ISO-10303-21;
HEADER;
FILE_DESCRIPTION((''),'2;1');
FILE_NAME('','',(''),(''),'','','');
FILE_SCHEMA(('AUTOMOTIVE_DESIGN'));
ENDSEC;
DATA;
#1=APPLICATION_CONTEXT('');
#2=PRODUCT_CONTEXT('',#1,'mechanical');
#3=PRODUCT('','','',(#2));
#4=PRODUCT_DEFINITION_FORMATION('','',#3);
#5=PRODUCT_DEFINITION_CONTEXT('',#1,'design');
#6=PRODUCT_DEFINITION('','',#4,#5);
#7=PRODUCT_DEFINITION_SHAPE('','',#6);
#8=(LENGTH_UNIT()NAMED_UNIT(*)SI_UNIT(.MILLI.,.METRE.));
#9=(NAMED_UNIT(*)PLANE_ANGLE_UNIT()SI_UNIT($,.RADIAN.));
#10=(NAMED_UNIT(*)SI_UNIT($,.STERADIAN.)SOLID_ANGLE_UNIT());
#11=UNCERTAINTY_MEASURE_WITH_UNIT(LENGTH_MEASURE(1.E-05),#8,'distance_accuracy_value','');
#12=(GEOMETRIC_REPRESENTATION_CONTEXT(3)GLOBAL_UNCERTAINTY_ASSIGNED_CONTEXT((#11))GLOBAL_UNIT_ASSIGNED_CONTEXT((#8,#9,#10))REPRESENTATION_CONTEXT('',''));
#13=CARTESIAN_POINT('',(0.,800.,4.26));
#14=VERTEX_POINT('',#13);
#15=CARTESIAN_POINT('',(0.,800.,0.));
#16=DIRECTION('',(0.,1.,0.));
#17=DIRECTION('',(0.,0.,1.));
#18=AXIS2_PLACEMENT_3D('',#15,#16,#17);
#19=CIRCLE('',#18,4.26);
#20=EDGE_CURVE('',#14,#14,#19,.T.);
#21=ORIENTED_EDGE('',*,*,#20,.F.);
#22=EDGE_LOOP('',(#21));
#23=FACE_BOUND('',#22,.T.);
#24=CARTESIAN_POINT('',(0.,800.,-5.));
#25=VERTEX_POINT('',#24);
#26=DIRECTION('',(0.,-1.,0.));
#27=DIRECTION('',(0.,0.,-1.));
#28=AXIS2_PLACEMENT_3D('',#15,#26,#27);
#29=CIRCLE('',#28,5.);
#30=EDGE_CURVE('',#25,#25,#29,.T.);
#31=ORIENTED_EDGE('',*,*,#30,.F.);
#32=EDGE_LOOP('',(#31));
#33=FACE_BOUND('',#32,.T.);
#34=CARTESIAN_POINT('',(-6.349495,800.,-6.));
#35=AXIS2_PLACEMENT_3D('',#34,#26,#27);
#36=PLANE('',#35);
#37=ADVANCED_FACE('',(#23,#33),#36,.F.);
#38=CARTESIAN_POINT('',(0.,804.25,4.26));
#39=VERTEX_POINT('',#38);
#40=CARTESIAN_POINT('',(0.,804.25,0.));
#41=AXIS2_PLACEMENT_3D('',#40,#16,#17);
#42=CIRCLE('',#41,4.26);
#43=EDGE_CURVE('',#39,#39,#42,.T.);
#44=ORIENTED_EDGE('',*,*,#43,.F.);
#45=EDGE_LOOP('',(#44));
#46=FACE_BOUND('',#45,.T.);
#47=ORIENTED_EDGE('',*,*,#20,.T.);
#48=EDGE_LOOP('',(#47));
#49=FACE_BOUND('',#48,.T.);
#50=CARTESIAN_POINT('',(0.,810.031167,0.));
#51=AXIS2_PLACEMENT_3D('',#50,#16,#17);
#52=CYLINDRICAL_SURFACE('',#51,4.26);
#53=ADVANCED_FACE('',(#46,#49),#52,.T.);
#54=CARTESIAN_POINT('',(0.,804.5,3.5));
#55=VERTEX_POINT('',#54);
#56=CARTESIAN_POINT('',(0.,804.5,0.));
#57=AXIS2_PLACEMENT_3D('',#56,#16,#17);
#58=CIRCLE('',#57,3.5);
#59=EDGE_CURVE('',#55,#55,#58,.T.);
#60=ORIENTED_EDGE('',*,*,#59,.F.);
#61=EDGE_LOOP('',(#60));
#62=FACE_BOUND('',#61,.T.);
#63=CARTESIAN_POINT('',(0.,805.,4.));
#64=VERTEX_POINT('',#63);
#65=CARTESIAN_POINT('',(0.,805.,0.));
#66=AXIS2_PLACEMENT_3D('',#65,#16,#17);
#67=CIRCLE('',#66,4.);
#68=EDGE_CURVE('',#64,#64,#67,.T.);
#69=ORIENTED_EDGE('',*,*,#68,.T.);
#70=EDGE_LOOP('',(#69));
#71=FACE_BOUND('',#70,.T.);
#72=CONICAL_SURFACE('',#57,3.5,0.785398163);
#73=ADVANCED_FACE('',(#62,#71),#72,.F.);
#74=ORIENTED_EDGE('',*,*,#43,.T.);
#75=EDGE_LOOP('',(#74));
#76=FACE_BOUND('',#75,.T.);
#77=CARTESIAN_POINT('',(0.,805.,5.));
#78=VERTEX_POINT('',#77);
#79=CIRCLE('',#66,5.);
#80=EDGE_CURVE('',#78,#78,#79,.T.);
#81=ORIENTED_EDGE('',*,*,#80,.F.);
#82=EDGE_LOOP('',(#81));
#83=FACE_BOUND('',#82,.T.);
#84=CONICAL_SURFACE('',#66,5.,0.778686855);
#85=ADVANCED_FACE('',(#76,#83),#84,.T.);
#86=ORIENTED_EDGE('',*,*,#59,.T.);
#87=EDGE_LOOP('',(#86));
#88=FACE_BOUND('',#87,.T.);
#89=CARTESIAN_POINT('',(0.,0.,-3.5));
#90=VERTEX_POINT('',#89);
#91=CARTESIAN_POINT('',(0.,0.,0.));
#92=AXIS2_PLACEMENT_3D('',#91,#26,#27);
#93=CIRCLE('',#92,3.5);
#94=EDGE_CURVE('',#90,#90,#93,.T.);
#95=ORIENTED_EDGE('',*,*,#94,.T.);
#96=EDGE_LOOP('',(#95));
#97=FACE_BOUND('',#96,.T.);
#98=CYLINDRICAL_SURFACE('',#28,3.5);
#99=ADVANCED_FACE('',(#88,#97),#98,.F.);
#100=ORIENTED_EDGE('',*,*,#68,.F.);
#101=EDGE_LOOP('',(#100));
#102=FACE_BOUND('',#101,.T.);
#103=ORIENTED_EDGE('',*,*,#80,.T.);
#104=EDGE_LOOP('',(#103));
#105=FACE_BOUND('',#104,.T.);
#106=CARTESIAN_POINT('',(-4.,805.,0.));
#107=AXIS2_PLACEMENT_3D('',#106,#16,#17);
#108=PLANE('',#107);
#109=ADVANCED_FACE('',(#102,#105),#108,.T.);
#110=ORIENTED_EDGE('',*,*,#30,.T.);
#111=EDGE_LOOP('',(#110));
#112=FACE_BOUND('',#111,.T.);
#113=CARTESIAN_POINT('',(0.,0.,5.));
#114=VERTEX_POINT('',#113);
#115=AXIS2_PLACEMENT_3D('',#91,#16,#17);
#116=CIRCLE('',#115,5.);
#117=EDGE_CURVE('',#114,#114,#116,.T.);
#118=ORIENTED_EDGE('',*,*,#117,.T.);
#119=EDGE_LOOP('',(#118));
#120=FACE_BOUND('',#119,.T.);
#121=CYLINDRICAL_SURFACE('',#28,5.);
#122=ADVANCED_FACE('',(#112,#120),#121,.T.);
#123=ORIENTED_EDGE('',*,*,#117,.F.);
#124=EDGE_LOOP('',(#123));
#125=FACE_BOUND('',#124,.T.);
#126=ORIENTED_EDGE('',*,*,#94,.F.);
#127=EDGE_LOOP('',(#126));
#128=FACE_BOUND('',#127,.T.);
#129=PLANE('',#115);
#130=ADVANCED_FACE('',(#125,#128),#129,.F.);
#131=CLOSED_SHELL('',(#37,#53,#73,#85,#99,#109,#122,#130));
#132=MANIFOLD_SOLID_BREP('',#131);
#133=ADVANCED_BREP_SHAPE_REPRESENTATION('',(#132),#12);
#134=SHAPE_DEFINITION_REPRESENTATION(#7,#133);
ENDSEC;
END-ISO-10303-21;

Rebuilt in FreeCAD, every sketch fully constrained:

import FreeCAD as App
import Part
import Sketcher
from FreeCAD import Vector
Q = App.Units.Quantity


def edges_at(feature, points):
    """Names of the edges that pass closest to the given points."""
    edges = feature.Shape.Edges
    near = lambda p: min(range(len(edges)), key=lambda i: edges[i].distToShape(Part.Vertex(*p))[0])
    return sorted({f"Edge{near(p) + 1}" for p in points})

doc = App.newDocument("Part")
body = doc.addObject("PartDesign::Body", "Body")

# Sketch on XZ plane
sketch1 = body.newObject("Sketcher::SketchObject", "Sketch")
sketch1.AttachmentSupport = (doc.getObject("XZ_Plane"), [""])
sketch1.MapMode = "FlatFace"
sketch1.addGeometry(Part.Circle(Vector(0, 0, 0), Vector(0, 0, 1), 5), False)
sketch1.addConstraint(Sketcher.Constraint("Coincident", 0, 3, -1, 1))
sketch1.addConstraint(Sketcher.Constraint("Diameter", 0, Q("10 mm")))
pad1 = body.newObject("PartDesign::Pad", "Pad")
pad1.Profile = sketch1
pad1.Length = 800
pad1.Reversed = True

# Sketch on XZ plane
sketch2 = body.newObject("Sketcher::SketchObject", "Sketch001")
sketch2.AttachmentSupport = (doc.getObject("XZ_Plane"), [""])
sketch2.MapMode = "FlatFace"
sketch2.addGeometry(Part.Circle(Vector(0, 0, 0), Vector(0, 0, 1), 3.5), False)
sketch2.addConstraint(Sketcher.Constraint("Coincident", 0, 3, -1, 1))
sketch2.addConstraint(Sketcher.Constraint("Diameter", 0, Q("7 mm")))
pocket1 = body.newObject("PartDesign::Pocket", "Pocket")
pocket1.Profile = sketch2
pocket1.Type = "ThroughAll"

# Sketch on XZ plane
sketch3 = body.newObject("Sketcher::SketchObject", "Sketch002")
sketch3.AttachmentSupport = (doc.getObject("XZ_Plane"), [""])
sketch3.MapMode = "FlatFace"
sketch3.AttachmentOffset = App.Placement(Vector(0, 0, -800), App.Rotation())
sketch3.addGeometry(Part.Circle(Vector(0, 0, 0), Vector(0, 0, 1), 6), False)
sketch3.addConstraint(Sketcher.Constraint("Coincident", 0, 3, -1, 1))
sketch3.addConstraint(Sketcher.Constraint("Diameter", 0, Q("12 mm")))
pad2 = body.newObject("PartDesign::Pad", "Pad001")
pad2.Profile = sketch3
pad2.Length = 1
pad2.Reversed = True

# Sketch on XZ plane
sketch4 = body.newObject("Sketcher::SketchObject", "Sketch003")
sketch4.AttachmentSupport = (doc.getObject("XZ_Plane"), [""])
sketch4.MapMode = "FlatFace"
sketch4.AttachmentOffset = App.Placement(Vector(0, 0, -801), App.Rotation())
sketch4.addGeometry(Part.Circle(Vector(0, 0, 0), Vector(0, 0, 1), 3.5), False)
sketch4.addConstraint(Sketcher.Constraint("Coincident", 0, 3, -1, 1))
sketch4.addConstraint(Sketcher.Constraint("Diameter", 0, Q("7 mm")))
pocket2 = body.newObject("PartDesign::Pocket", "Pocket001")
pocket2.Profile = sketch4
pocket2.Length = 1
pocket2.Reversed = True
doc.recompute()

chamfer = body.newObject("PartDesign::Chamfer", "Chamfer")
chamfer.Base = (pocket2, edges_at(pocket2, [(-3.5, 801, 0)]))
chamfer.Size = 1

# Sketch on XY plane
sketch5 = body.newObject("Sketcher::SketchObject", "Sketch004")
sketch5.AttachmentSupport = (doc.getObject("XY_Plane"), [""])
sketch5.MapMode = "FlatFace"
sketch5.addGeometry(Part.LineSegment(Vector(-6.3, 801.7, 0), Vector(-6.3, 800, 0)), False)
sketch5.addGeometry(Part.LineSegment(Vector(-6.3, 800, 0), Vector(7, 800, 0)), False)
sketch5.addGeometry(Part.LineSegment(Vector(7, 800, 0), Vector(7, 801.7, 0)), False)
sketch5.addGeometry(Part.LineSegment(Vector(7, 801.7, 0), Vector(-6.3, 801.7, 0)), False)
sketch5.addConstraint(Sketcher.Constraint("Coincident", 0, 2, 1, 1))
sketch5.addConstraint(Sketcher.Constraint("Coincident", 1, 2, 2, 1))
sketch5.addConstraint(Sketcher.Constraint("Coincident", 2, 2, 3, 1))
sketch5.addConstraint(Sketcher.Constraint("Coincident", 3, 2, 0, 1))
sketch5.addConstraint(Sketcher.Constraint("Vertical", 0))
sketch5.addConstraint(Sketcher.Constraint("Horizontal", 1))
sketch5.addConstraint(Sketcher.Constraint("Vertical", 2))
sketch5.addConstraint(Sketcher.Constraint("Horizontal", 3))
sketch5.addConstraint(Sketcher.Constraint("DistanceY", -1, 1, 0, 2, Q("800 mm")))
sketch5.addConstraint(Sketcher.Constraint("DistanceX", 1, 1, 1, 2, Q("13.367883 mm")))
sketch5.addConstraint(Sketcher.Constraint("DistanceY", 0, 2, 0, 1, Q("1.687827 mm")))
sketch5.addConstraint(Sketcher.Constraint("DistanceX", -1, 1, 1, 2, Q("7.018388 mm")))
pocket3 = body.newObject("PartDesign::Pocket", "Pocket002")
pocket3.Profile = sketch5
pocket3.Type = "ThroughAll"
pocket3.Midplane = True

# Sketch on XY plane
sketch6 = body.newObject("Sketcher::SketchObject", "Sketch005")
sketch6.AttachmentSupport = (doc.getObject("XY_Plane"), [""])
sketch6.MapMode = "FlatFace"
sketch6.addGeometry(Part.LineSegment(Vector(-3.5, 800, 0), Vector(-3.5, 804.5, 0)), False)
sketch6.addGeometry(Part.LineSegment(Vector(-3.5, 804.5, 0), Vector(-4, 805, 0)), False)
sketch6.addGeometry(Part.LineSegment(Vector(-4, 805, 0), Vector(-5, 805, 0)), False)
sketch6.addGeometry(Part.LineSegment(Vector(-5, 805, 0), Vector(-4.3, 804.2, 0)), False)
sketch6.addGeometry(Part.LineSegment(Vector(-4.3, 804.2, 0), Vector(-4.3, 800, 0)), False)
sketch6.addGeometry(Part.LineSegment(Vector(-4.3, 800, 0), Vector(-3.5, 800, 0)), False)
sketch6.addConstraint(Sketcher.Constraint("Coincident", 0, 2, 1, 1))
sketch6.addConstraint(Sketcher.Constraint("Coincident", 1, 2, 2, 1))
sketch6.addConstraint(Sketcher.Constraint("Coincident", 2, 2, 3, 1))
sketch6.addConstraint(Sketcher.Constraint("Coincident", 3, 2, 4, 1))
sketch6.addConstraint(Sketcher.Constraint("Coincident", 4, 2, 5, 1))
sketch6.addConstraint(Sketcher.Constraint("Coincident", 5, 2, 0, 1))
sketch6.addConstraint(Sketcher.Constraint("Vertical", 0))
sketch6.addConstraint(Sketcher.Constraint("Horizontal", 2))
sketch6.addConstraint(Sketcher.Constraint("Vertical", 4))
sketch6.addConstraint(Sketcher.Constraint("Horizontal", 5))
sketch6.addConstraint(Sketcher.Constraint("DistanceX", 2, 2, 2, 1, Q("1 mm")))
sketch6.addConstraint(Sketcher.Constraint("Angle", 1, Q("135 deg")))
sketch6.addConstraint(Sketcher.Constraint("DistanceY", 0, 1, 0, 2, Q("4.5 mm")))
sketch6.addConstraint(Sketcher.Constraint("DistanceX", 1, 2, -1, 1, Q("4 mm")))
sketch6.addConstraint(Sketcher.Constraint("DistanceY", -1, 1, 1, 2, Q("805 mm")))
sketch6.addConstraint(Sketcher.Constraint("DistanceY", -1, 1, 4, 2, Q("800 mm")))
sketch6.addConstraint(Sketcher.Constraint("DistanceX", 5, 1, 5, 2, Q("0.76 mm")))
sketch6.addConstraint(Sketcher.Constraint("DistanceY", 4, 2, 4, 1, Q("4.25 mm")))
revolution = body.newObject("PartDesign::Revolution", "Revolution")
revolution.Profile = sketch6
revolution.ReferenceAxis = (sketch6, ["V_Axis"])
revolution.Angle = 360

doc.recompute()
